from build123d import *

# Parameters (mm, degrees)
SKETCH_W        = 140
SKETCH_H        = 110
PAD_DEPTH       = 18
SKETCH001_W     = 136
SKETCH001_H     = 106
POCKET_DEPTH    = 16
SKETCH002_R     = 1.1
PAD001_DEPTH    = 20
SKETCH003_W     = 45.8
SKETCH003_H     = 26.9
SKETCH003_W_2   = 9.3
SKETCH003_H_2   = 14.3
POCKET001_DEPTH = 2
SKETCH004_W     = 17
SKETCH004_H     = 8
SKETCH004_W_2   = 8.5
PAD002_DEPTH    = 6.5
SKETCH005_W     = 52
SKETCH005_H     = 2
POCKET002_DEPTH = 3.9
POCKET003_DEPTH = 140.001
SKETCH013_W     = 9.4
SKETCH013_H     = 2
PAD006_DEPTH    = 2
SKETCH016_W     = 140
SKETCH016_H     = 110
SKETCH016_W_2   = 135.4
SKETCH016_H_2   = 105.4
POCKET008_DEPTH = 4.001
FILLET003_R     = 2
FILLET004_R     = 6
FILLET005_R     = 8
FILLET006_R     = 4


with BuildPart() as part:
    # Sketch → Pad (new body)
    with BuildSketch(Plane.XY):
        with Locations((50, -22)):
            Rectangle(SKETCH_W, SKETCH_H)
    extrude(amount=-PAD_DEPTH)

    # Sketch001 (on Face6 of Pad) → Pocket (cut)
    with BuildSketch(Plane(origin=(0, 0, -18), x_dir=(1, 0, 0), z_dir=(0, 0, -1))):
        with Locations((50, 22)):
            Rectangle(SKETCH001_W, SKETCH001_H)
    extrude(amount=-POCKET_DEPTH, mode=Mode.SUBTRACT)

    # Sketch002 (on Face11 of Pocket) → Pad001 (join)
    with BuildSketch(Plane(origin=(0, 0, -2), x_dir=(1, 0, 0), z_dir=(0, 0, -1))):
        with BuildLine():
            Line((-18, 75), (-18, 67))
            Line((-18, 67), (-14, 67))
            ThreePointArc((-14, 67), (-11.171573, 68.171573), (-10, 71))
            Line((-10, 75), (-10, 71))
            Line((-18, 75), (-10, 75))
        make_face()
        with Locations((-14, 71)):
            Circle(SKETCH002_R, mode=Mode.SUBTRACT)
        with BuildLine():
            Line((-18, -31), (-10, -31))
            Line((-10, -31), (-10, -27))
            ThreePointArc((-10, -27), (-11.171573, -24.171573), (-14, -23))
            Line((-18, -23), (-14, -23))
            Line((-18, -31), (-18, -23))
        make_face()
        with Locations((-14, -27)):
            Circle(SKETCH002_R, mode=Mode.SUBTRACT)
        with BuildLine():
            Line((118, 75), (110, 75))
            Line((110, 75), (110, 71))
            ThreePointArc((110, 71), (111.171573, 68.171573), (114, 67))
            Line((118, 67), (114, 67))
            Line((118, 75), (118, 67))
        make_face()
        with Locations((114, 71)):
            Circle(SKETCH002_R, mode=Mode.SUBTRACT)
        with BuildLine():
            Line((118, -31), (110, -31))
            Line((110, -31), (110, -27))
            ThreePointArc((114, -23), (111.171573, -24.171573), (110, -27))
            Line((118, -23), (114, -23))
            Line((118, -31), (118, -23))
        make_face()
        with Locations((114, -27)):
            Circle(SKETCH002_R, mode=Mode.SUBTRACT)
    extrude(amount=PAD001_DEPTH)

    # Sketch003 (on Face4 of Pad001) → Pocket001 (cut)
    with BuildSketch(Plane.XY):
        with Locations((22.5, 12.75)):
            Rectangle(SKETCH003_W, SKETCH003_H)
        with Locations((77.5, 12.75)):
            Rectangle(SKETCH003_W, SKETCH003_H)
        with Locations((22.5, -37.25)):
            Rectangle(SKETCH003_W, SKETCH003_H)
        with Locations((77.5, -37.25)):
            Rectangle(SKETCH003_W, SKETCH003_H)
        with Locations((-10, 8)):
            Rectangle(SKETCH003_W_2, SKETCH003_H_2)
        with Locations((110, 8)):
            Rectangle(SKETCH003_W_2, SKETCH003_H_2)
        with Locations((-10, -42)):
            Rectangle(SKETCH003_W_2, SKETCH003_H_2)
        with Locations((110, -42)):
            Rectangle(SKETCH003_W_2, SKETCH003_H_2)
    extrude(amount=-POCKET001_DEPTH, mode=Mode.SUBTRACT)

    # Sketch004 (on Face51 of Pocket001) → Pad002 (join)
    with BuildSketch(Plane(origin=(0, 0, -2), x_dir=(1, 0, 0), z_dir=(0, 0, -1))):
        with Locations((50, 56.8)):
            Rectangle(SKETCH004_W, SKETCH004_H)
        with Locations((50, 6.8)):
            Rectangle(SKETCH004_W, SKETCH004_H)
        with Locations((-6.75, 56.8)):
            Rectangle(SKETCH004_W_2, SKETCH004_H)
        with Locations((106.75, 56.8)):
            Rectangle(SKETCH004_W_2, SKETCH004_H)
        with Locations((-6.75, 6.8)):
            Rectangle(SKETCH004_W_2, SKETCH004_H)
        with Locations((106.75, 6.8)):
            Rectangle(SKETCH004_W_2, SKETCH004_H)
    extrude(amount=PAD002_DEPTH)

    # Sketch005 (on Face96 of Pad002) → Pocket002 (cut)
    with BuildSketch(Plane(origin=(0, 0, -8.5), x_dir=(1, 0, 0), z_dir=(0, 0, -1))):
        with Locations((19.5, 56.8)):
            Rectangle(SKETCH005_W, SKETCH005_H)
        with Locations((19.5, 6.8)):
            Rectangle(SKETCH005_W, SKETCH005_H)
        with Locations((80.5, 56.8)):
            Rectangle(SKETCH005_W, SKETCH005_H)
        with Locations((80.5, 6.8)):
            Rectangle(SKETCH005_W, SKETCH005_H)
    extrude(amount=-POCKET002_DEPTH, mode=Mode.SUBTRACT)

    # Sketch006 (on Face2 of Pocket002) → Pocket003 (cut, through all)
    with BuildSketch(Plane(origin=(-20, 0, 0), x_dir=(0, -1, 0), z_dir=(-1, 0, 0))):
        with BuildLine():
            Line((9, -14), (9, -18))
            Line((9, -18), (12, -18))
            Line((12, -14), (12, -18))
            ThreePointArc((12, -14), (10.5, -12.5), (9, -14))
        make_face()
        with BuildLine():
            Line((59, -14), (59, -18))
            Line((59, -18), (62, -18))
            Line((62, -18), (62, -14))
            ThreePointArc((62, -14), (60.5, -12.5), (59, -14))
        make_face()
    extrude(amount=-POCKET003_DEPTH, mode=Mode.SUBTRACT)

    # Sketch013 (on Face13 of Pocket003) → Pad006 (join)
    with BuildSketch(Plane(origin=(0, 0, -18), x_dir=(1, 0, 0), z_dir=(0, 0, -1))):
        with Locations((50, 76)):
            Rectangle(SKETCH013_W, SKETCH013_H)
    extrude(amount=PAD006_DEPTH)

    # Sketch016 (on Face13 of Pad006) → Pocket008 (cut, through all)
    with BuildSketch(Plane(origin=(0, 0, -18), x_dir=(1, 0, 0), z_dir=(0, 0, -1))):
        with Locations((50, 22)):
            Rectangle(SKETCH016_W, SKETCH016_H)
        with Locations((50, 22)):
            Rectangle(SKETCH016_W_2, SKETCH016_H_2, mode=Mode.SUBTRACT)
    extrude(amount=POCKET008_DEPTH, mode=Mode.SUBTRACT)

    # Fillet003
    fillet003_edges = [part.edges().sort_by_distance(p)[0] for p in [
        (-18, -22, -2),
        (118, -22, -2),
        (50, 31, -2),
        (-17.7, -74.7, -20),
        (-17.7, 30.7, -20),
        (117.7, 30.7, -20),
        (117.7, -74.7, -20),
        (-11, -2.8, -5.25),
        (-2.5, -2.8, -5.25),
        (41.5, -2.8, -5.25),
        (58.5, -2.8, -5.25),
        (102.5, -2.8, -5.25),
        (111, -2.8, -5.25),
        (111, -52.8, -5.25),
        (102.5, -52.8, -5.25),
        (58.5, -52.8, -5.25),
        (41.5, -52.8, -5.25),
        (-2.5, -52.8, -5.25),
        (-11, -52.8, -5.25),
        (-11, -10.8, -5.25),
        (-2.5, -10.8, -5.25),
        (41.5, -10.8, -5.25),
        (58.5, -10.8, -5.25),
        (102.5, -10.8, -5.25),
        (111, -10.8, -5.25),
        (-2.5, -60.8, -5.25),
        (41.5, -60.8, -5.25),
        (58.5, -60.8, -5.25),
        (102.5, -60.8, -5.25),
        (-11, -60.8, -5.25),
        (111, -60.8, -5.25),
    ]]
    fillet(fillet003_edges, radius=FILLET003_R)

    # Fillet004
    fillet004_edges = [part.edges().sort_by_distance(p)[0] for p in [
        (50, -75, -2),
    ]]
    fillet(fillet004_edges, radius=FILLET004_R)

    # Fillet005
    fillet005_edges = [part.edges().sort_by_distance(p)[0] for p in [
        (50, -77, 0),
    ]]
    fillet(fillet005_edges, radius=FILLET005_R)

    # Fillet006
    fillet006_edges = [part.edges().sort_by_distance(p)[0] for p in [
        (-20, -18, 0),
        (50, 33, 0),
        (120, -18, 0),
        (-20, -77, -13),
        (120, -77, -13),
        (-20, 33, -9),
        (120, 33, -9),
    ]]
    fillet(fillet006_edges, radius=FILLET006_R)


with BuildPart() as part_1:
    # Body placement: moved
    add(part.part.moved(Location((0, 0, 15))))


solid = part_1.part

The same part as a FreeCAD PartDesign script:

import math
import FreeCAD as App
import Part
import Sketcher


def edges_at(feature, points):
    """Names of the edges that pass closest to the given points."""
    edges = feature.Shape.Edges
    near = lambda p: min(range(len(edges)), key=lambda i: edges[i].distToShape(Part.Vertex(*p))[0])
    return sorted({f"Edge{near(p) + 1}" for p in points})

doc = App.newDocument("Part")
body = doc.addObject("PartDesign::Body", "Body")

sketch1 = body.newObject("Sketcher::SketchObject", "Sketch")
sketch1.AttachmentSupport = (doc.getObject("XY_Plane"), [""])
sketch1.MapMode = "FlatFace"
sketch1.addGeometry([
    Part.LineSegment(App.Vector(-20, 33, 0), App.Vector(-20, -77, 0)),
    Part.LineSegment(App.Vector(-20, -77, 0), App.Vector(120, -77, 0)),
    Part.LineSegment(App.Vector(120, -77, 0), App.Vector(120, 33, 0)),
    Part.LineSegment(App.Vector(120, 33, 0), App.Vector(-20, 33, 0)),
], False)
sketch1.addConstraint([
    Sketcher.Constraint("Coincident", 0, 2, 1, 1),
    Sketcher.Constraint("Coincident", 1, 2, 2, 1),
    Sketcher.Constraint("Coincident", 2, 2, 3, 1),
    Sketcher.Constraint("Coincident", 3, 2, 0, 1),
    Sketcher.Constraint("Vertical", 0),
    Sketcher.Constraint("Horizontal", 1),
    Sketcher.Constraint("Vertical", 2),
    Sketcher.Constraint("Horizontal", 3),
    Sketcher.Constraint("DistanceX", 1, 1, 1, 2, 140.0),
    Sketcher.Constraint("DistanceY", 0, 2, 0, 1, 110.0),
    Sketcher.Constraint("DistanceX", 0, 2, -1, 1, 20.0),
    Sketcher.Constraint("DistanceY", 0, 2, -1, 1, 77.0),
])
pad1 = body.newObject("PartDesign::Pad", "Pad")
pad1.Profile = sketch1
pad1.Length = 18
pad1.Reversed = True

sketch2 = body.newObject("Sketcher::SketchObject", "Sketch001")
sketch2.AttachmentSupport = (doc.getObject("XY_Plane"), [""])
sketch2.MapMode = "FlatFace"
sketch2.AttachmentOffset = App.Placement(App.Vector(0, 0, -18), App.Rotation())
sketch2.addGeometry([
    Part.LineSegment(App.Vector(-18, -75, 0), App.Vector(-18, 31, 0)),
    Part.LineSegment(App.Vector(-18, 31, 0), App.Vector(118, 31, 0)),
    Part.LineSegment(App.Vector(118, 31, 0), App.Vector(118, -75, 0)),
    Part.LineSegment(App.Vector(118, -75, 0), App.Vector(-18, -75, 0)),
], False)
sketch2.addConstraint([
    Sketcher.Constraint("Coincident", 0, 2, 1, 1),
    Sketcher.Constraint("Coincident", 1, 2, 2, 1),
    Sketcher.Constraint("Coincident", 2, 2, 3, 1),
    Sketcher.Constraint("Coincident", 3, 2, 0, 1),
    Sketcher.Constraint("Vertical", 0),
    Sketcher.Constraint("Horizontal", 1),
    Sketcher.Constraint("Vertical", 2),
    Sketcher.Constraint("Horizontal", 3),
    Sketcher.Constraint("DistanceX", 1, 1, 1, 2, 136.0),
    Sketcher.Constraint("DistanceY", 0, 1, 0, 2, 106.0),
    Sketcher.Constraint("DistanceX", 0, 2, -1, 1, 18.0),
    Sketcher.Constraint("DistanceY", -1, 1, 0, 2, 31.0),
])
pocket1 = body.newObject("PartDesign::Pocket", "Pocket")
pocket1.Profile = sketch2
pocket1.Length = 16
pocket1.Reversed = True

sketch3 = body.newObject("Sketcher::SketchObject", "Sketch002")
sketch3.AttachmentSupport = (doc.getObject("XY_Plane"), [""])
sketch3.MapMode = "FlatFace"
sketch3.AttachmentOffset = App.Placement(App.Vector(0, 0, -2), App.Rotation())
sketch3.addGeometry([
    Part.LineSegment(App.Vector(-18, -75, 0), App.Vector(-18, -67, 0)),
    Part.LineSegment(App.Vector(-18, -67, 0), App.Vector(-14, -67, 0)),
    Part.ArcOfCircle(Part.Circle(App.Vector(-14, -71, 0), App.Vector(0, 0, 1), 4), math.radians(0), math.radians(90)),
    Part.LineSegment(App.Vector(-10, -71, 0), App.Vector(-10, -75, 0)),
    Part.LineSegment(App.Vector(-10, -75, 0), App.Vector(-18, -75, 0)),
    Part.Circle(App.Vector(-14, -71, 0), App.Vector(0, 0, 1), 1.1),
    Part.LineSegment(App.Vector(-18, 31, 0), App.Vector(-10, 31, 0)),
    Part.LineSegment(App.Vector(-10, 31, 0), App.Vector(-10, 27, 0)),
    Part.ArcOfCircle(Part.Circle(App.Vector(-14, 27, 0), App.Vector(0, 0, 1), 4), math.radians(-90), math.radians(0)),
    Part.LineSegment(App.Vector(-14, 23, 0), App.Vector(-18, 23, 0)),
    Part.LineSegment(App.Vector(-18, 23, 0), App.Vector(-18, 31, 0)),
    Part.Circle(App.Vector(-14, 27, 0), App.Vector(0, 0, 1), 1.1),
    Part.LineSegment(App.Vector(118, -75, 0), App.Vector(110, -75, 0)),
    Part.LineSegment(App.Vector(110, -75, 0), App.Vector(110, -71, 0)),
    Part.ArcOfCircle(Part.Circle(App.Vector(114, -71, 0), App.Vector(0, 0, 1), 4), math.radians(90), math.radians(180)),
    Part.LineSegment(App.Vector(114, -67, 0), App.Vector(118, -67, 0)),
    Part.LineSegment(App.Vector(118, -67, 0), App.Vector(118, -75, 0)),
    Part.Circle(App.Vector(114, -71, 0), App.Vector(0, 0, 1), 1.1),
    Part.LineSegment(App.Vector(110, 31, 0), App.Vector(118, 31, 0)),
    Part.LineSegment(App.Vector(118, 31, 0), App.Vector(118, 23, 0)),
    Part.LineSegment(App.Vector(118, 23, 0), App.Vector(114, 23, 0)),
    Part.ArcOfCircle(Part.Circle(App.Vector(114, 27, 0), App.Vector(0, 0, 1), 4), math.radians(-180), math.radians(-90)),
    Part.LineSegment(App.Vector(110, 27, 0), App.Vector(110, 31, 0)),
    Part.Circle(App.Vector(114, 27, 0), App.Vector(0, 0, 1), 1.1),
], False)
sketch3.addConstraint([
    Sketcher.Constraint("Coincident", 0, 2, 1, 1),
    Sketcher.Constraint("Tangent", 1, 2, 2, 2),
    Sketcher.Constraint("Tangent", 2, 1, 3, 1),
    Sketcher.Constraint("Coincident", 3, 2, 4, 1),
    Sketcher.Constraint("Coincident", 4, 2, 0, 1),
    Sketcher.Constraint("Coincident", 6, 2, 7, 1),
    Sketcher.Constraint("Tangent", 7, 2, 8, 2),
    Sketcher.Constraint("Tangent", 8, 1, 9, 1),
    Sketcher.Constraint("Coincident", 9, 2, 10, 1),
    Sketcher.Constraint("Coincident", 10, 2, 6, 1),
    Sketcher.Constraint("Coincident", 12, 2, 13, 1),
    Sketcher.Constraint("Tangent", 13, 2, 14, 2),
    Sketcher.Constraint("Tangent", 14, 1, 15, 1),
    Sketcher.Constraint("Coincident", 15, 2, 16, 1),
    Sketcher.Constraint("Coincident", 16, 2, 12, 1),
    Sketcher.Constraint("Coincident", 18, 2, 19, 1),
    Sketcher.Constraint("Coincident", 19, 2, 20, 1),
    Sketcher.Constraint("Tangent", 20, 2, 21, 2),
    Sketcher.Constraint("Tangent", 21, 1, 22, 1),
    Sketcher.Constraint("Coincident", 22, 2, 18, 1),
    Sketcher.Constraint("Vertical", 0),
    Sketcher.Constraint("Horizontal", 1),
    Sketcher.Constraint("Vertical", 3),
    Sketcher.Constraint("Horizontal", 4),
    Sketcher.Constraint("Horizontal", 6),
    Sketcher.Constraint("Vertical", 7),
    Sketcher.Constraint("Horizontal", 9),
    Sketcher.Constraint("Vertical", 10),
    Sketcher.Constraint("Horizontal", 12),
    Sketcher.Constraint("Vertical", 13),
    Sketcher.Constraint("Horizontal", 15),
    Sketcher.Constraint("Vertical", 16),
    Sketcher.Constraint("Horizontal", 18),
    Sketcher.Constraint("Vertical", 19),
    Sketcher.Constraint("Horizontal", 20),
    Sketcher.Constraint("Vertical", 22),
    Sketcher.Constraint("Coincident", 5, 3, 2, 3),
    Sketcher.Constraint("Coincident", 11, 3, 8, 3),
    Sketcher.Constraint("Coincident", 17, 3, 14, 3),
    Sketcher.Constraint("Coincident", 23, 3, 21, 3),
    Sketcher.Constraint("Equal", 2, 8),
    Sketcher.Constraint("Equal", 5, 11),
    Sketcher.Constraint("Equal", 8, 14),
    Sketcher.Constraint("Equal", 11, 17),
    Sketcher.Constraint("Equal", 14, 21),
    Sketcher.Constraint("Equal", 17, 23),
    Sketcher.Constraint("Horizontal", 5, 3, 14, 3),
    Sketcher.Constraint("Horizontal", 11, 3, 21, 3),
    Sketcher.Constraint("Horizontal", 4, 2, 12, 2),
    Sketcher.Constraint("Horizontal", 10, 2, 18, 2),
    Sketcher.Constraint("Vertical", 5, 3, 8, 3),
    Sketcher.Constraint("Vertical", 17, 3, 21, 3),
    Sketcher.Constraint("Vertical", 4, 2, 9, 2),
    Sketcher.Constraint("Vertical", 16, 2, 18, 2),
    Sketcher.Constraint("Equal", 6, 12),
    Sketcher.Constraint("Equal", 18, 0),
    Sketcher.Constraint("Equal", 3, 7),
    Sketcher.Constraint("Radius", 2, 4.0),
    Sketcher.Constraint("Diameter", 5, 2.2),
    Sketcher.Constraint("DistanceX", 1, 1, 1, 2, 4.0),
    Sketcher.Constraint("DistanceX", 2, 3, -1, 1, 14.0),
    Sketcher.Constraint("DistanceY", 2, 3, -1, 1, 71.0),
    Sketcher.Constraint("DistanceY", -1, 1, 8, 3, 27.0),
    Sketcher.Constraint("DistanceX", -1, 1, 14, 3, 114.0),
])
pad2 = body.newObject("PartDesign::Pad", "Pad001")
pad2.Profile = sketch3
pad2.Length = 20
pad2.Reversed = True

sketch4 = body.newObject("Sketcher::SketchObject", "Sketch003")
sketch4.AttachmentSupport = (doc.getObject("XY_Plane"), [""])
sketch4.MapMode = "FlatFace"
sketch4.addGeometry([
    Part.LineSegment(App.Vector(0, 26, 0), App.Vector(0, -1, 0)),
    Part.LineSegment(App.Vector(0, -1, 0), App.Vector(45, -1, 0)),
    Part.LineSegment(App.Vector(45, -1, 0), App.Vector(45, 26, 0)),
    Part.LineSegment(App.Vector(45, 26, 0), App.Vector(0, 26, 0)),
    Part.LineSegment(App.Vector(55, 26, 0), App.Vector(55, -1, 0)),
    Part.LineSegment(App.Vector(55, -1, 0), App.Vector(100, -1, 0)),
    Part.LineSegment(App.Vector(100, -1, 0), App.Vector(100, 26, 0)),
    Part.LineSegment(App.Vector(100, 26, 0), App.Vector(55, 26, 0)),
    Part.LineSegment(App.Vector(0, -24, 0), App.Vector(0, -51, 0)),
    Part.LineSegment(App.Vector(0, -51, 0), App.Vector(45, -51, 0)),
    Part.LineSegment(App.Vector(45, -51, 0), App.Vector(45, -24, 0)),
    Part.LineSegment(App.Vector(45, -24, 0), App.Vector(0, -24, 0)),
    Part.LineSegment(App.Vector(55, -24, 0), App.Vector(55, -51, 0)),
    Part.LineSegment(App.Vector(55, -51, 0), App.Vector(100, -51, 0)),
    Part.LineSegment(App.Vector(100, -51, 0), App.Vector(100, -24, 0)),
    Part.LineSegment(App.Vector(100, -24, 0), App.Vector(55, -24, 0)),
    Part.LineSegment(App.Vector(-15, 15, 0), App.Vector(-15, 1, 0)),
    Part.LineSegment(App.Vector(-15, 1, 0), App.Vector(-5, 1, 0)),
    Part.LineSegment(App.Vector(-5, 1, 0), App.Vector(-5, 15, 0)),
    Part.LineSegment(App.Vector(-5, 15, 0), App.Vector(-15, 15, 0)),
    Part.LineSegment(App.Vector(105, 15, 0), App.Vector(105, 1, 0)),
    Part.LineSegment(App.Vector(105, 1, 0), App.Vector(115, 1, 0)),
    Part.LineSegment(App.Vector(115, 1, 0), App.Vector(115, 15, 0)),
    Part.LineSegment(App.Vector(115, 15, 0), App.Vector(105, 15, 0)),
    Part.LineSegment(App.Vector(-15, -35, 0), App.Vector(-15, -49, 0)),
    Part.LineSegment(App.Vector(-15, -49, 0), App.Vector(-5, -49, 0)),
    Part.LineSegment(App.Vector(-5, -49, 0), App.Vector(-5, -35, 0)),
    Part.LineSegment(App.Vector(-5, -35, 0), App.Vector(-15, -35, 0)),
    Part.LineSegment(App.Vector(105, -35, 0), App.Vector(105, -49, 0)),
    Part.LineSegment(App.Vector(105, -49, 0), App.Vector(115, -49, 0)),
    Part.LineSegment(App.Vector(115, -49, 0), App.Vector(115, -35, 0)),
    Part.LineSegment(App.Vector(115, -35, 0), App.Vector(105, -35, 0)),
], False)
sketch4.addConstraint([
    Sketcher.Constraint("Coincident", 0, 2, 1, 1),
    Sketcher.Constraint("Coincident", 1, 2, 2, 1),
    Sketcher.Constraint("Coincident", 2, 2, 3, 1),
    Sketcher.Constraint("Coincident", 3, 2, 0, 1),
    Sketcher.Constraint("Coincident", 4, 2, 5, 1),
    Sketcher.Constraint("Coincident", 5, 2, 6, 1),
    Sketcher.Constraint("Coincident", 6, 2, 7, 1),
    Sketcher.Constraint("Coincident", 7, 2, 4, 1),
    Sketcher.Constraint("Coincident", 8, 2, 9, 1),
    Sketcher.Constraint("Coincident", 9, 2, 10, 1),
    Sketcher.Constraint("Coincident", 10, 2, 11, 1),
    Sketcher.Constraint("Coincident", 11, 2, 8, 1),
    Sketcher.Constraint("Coincident", 12, 2, 13, 1),
    Sketcher.Constraint("Coincident", 13, 2, 14, 1),
    Sketcher.Constraint("Coincident", 14, 2, 15, 1),
    Sketcher.Constraint("Coincident", 15, 2, 12, 1),
    Sketcher.Constraint("Coincident", 16, 2, 17, 1),
    Sketcher.Constraint("Coincident", 17, 2, 18, 1),
    Sketcher.Constraint("Coincident", 18, 2, 19, 1),
    Sketcher.Constraint("Coincident", 19, 2, 16, 1),
    Sketcher.Constraint("Coincident", 20, 2, 21, 1),
    Sketcher.Constraint("Coincident", 21, 2, 22, 1),
    Sketcher.Constraint("Coincident", 22, 2, 23, 1),
    Sketcher.Constraint("Coincident", 23, 2, 20, 1),
    Sketcher.Constraint("Coincident", 24, 2, 25, 1),
    Sketcher.Constraint("Coincident", 25, 2, 26, 1),
    Sketcher.Constraint("Coincident", 26, 2, 27, 1),
    Sketcher.Constraint("Coincident", 27, 2, 24, 1),
    Sketcher.Constraint("Coincident", 28, 2, 29, 1),
    Sketcher.Constraint("Coincident", 29, 2, 30, 1),
    Sketcher.Constraint("Coincident", 30, 2, 31, 1),
    Sketcher.Constraint("Coincident", 31, 2, 28, 1),
    Sketcher.Constraint("Vertical", 0),
    Sketcher.Constraint("Horizontal", 1),
    Sketcher.Constraint("Vertical", 2),
    Sketcher.Constraint("Horizontal", 3),
    Sketcher.Constraint("Vertical", 4),
    Sketcher.Constraint("Horizontal", 5),
    Sketcher.Constraint("Vertical", 6),
    Sketcher.Constraint("Horizontal", 7),
    Sketcher.Constraint("Vertical", 8),
    Sketcher.Constraint("Horizontal", 9),
    Sketcher.Constraint("Vertical", 10),
    Sketcher.Constraint("Horizontal", 11),
    Sketcher.Constraint("Vertical", 12),
    Sketcher.Constraint("Horizontal", 13),
    Sketcher.Constraint("Vertical", 14),
    Sketcher.Constraint("Horizontal", 15),
    Sketcher.Constraint("Vertical", 16),
    Sketcher.Constraint("Horizontal", 17),
    Sketcher.Constraint("Vertical", 18),
    Sketcher.Constraint("Horizontal", 19),
    Sketcher.Constraint("Vertical", 20),
    Sketcher.Constraint("Horizontal", 21),
    Sketcher.Constraint("Vertical", 22),
    Sketcher.Constraint("Horizontal", 23),
    Sketcher.Constraint("Vertical", 24),
    Sketcher.Constraint("Horizontal", 25),
    Sketcher.Constraint("Vertical", 26),
    Sketcher.Constraint("Horizontal", 27),
    Sketcher.Constraint("Vertical", 28),
    Sketcher.Constraint("Horizontal", 29),
    Sketcher.Constraint("Vertical", 30),
    Sketcher.Constraint("Horizontal", 31),
    Sketcher.Constraint("Horizontal", 1, 2, 4, 2),
    Sketcher.Constraint("Horizontal", 3, 2, 6, 2),
    Sketcher.Constraint("Horizontal", 9, 2, 12, 2),
    Sketcher.Constraint("Horizontal", 11, 2, 14, 2),
    Sketcher.Constraint("Horizontal", 17, 2, 20, 2),
    Sketcher.Constraint("Horizontal", 19, 2, 22, 2),
    Sketcher.Constraint("Horizontal", 25, 2, 28, 2),
    Sketcher.Constraint("Horizontal", 27, 2, 30, 2),
    Sketcher.Constraint("Vertical", 3, 2, 8, 2),
    Sketcher.Constraint("Vertical", 2, 2, 9, 2),
    Sketcher.Constraint("Vertical", 7, 2, 12, 2),
    Sketcher.Constraint("Vertical", 6, 2, 13, 2),
    Sketcher.Constraint("Vertical", 19, 2, 24, 2),
    Sketcher.Constraint("Vertical", 18, 2, 25, 2),
    Sketcher.Constraint("Vertical", 23, 2, 28, 2),
    Sketcher.Constraint("Vertical", 22, 2, 29, 2),
    Sketcher.Constraint("Equal", 3, 5),
    Sketcher.Constraint("Equal", 19, 21),
    Sketcher.Constraint("Equal", 6, 8),
    Sketcher.Constraint("Equal", 22, 24),
    Sketcher.Constraint("DistanceX", 1, 1, 1, 2, 45.8),
    Sketcher.Constraint("DistanceX", 17, 1, 17, 2, 9.3),
    Sketcher.Constraint("DistanceY", 0, 2, 0, 1, 26.9),
    Sketcher.Constraint("DistanceY", 16, 2, 16, 1, 14.3),
    Sketcher.Constraint("DistanceX", 0, 2, 4, 2, 55.0),
    Sketcher.Constraint("DistanceY", 8, 2, 0, 2, 50.0),
    Sketcher.Constraint("DistanceY", 24, 2, 16, 2, 50.0),
    Sketcher.Constraint("DistanceX", 0, 2, -1, 1, 0.4),
    Sketcher.Constraint("DistanceY", 0, 2, -1, 1, 0.7),
    Sketcher.Constraint("DistanceX", 16, 2, -1, 1, 14.65),
    Sketcher.Constraint("DistanceY", -1, 1, 16, 2, 0.85),
    Sketcher.Constraint("DistanceX", -1, 1, 20, 2, 105.35),
])
pocket2 = body.newObject("PartDesign::Pocket", "Pocket001")
pocket2.Profile = sketch4
pocket2.Length = 2

sketch5 = body.newObject("Sketcher::SketchObject", "Sketch004")
sketch5.AttachmentSupport = (doc.getObject("XY_Plane"), [""])
sketch5.MapMode = "FlatFace"
sketch5.AttachmentOffset = App.Placement(App.Vector(0, 0, -2), App.Rotation())
sketch5.addGeometry([
    Part.LineSegment(App.Vector(42, -61, 0), App.Vector(42, -53, 0)),
    Part.LineSegment(App.Vector(42, -53, 0), App.Vector(58, -53, 0)),
    Part.LineSegment(App.Vector(58, -53, 0), App.Vector(58, -61, 0)),
    Part.LineSegment(App.Vector(58, -61, 0), App.Vector(42, -61, 0)),
    Part.LineSegment(App.Vector(42, -11, 0), App.Vector(42, -3, 0)),
    Part.LineSegment(App.Vector(42, -3, 0), App.Vector(58, -3, 0)),
    Part.LineSegment(App.Vector(58, -3, 0), App.Vector(58, -11, 0)),
    Part.LineSegment(App.Vector(58, -11, 0), App.Vector(42, -11, 0)),
    Part.LineSegment(App.Vector(-11, -61, 0), App.Vector(-11, -53, 0)),
    Part.LineSegment(App.Vector(-11, -53, 0), App.Vector(-2, -53, 0)),
    Part.LineSegment(App.Vector(-2, -53, 0), App.Vector(-2, -61, 0)),
    Part.LineSegment(App.Vector(-2, -61, 0), App.Vector(-11, -61, 0)),
    Part.LineSegment(App.Vector(102, -61, 0), App.Vector(102, -53, 0)),
    Part.LineSegment(App.Vector(102, -53, 0), App.Vector(111, -53, 0)),
    Part.LineSegment(App.Vector(111, -53, 0), App.Vector(111, -61, 0)),
    Part.LineSegment(App.Vector(111, -61, 0), App.Vector(102, -61, 0)),
    Part.LineSegment(App.Vector(-11, -11, 0), App.Vector(-11, -3, 0)),
    Part.LineSegment(App.Vector(-11, -3, 0), App.Vector(-2, -3, 0)),
    Part.LineSegment(App.Vector(-2, -3, 0), App.Vector(-2, -11, 0)),
    Part.LineSegment(App.Vector(-2, -11, 0), App.Vector(-11, -11, 0)),
    Part.LineSegment(App.Vector(102, -11, 0), App.Vector(102, -3, 0)),
    Part.LineSegment(App.Vector(102, -3, 0), App.Vector(111, -3, 0)),
    Part.LineSegment(App.Vector(111, -3, 0), App.Vector(111, -11, 0)),
    Part.LineSegment(App.Vector(111, -11, 0), App.Vector(102, -11, 0)),
], False)
sketch5.addConstraint([
    Sketcher.Constraint("Coincident", 0, 2, 1, 1),
    Sketcher.Constraint("Coincident", 1, 2, 2, 1),
    Sketcher.Constraint("Coincident", 2, 2, 3, 1),
    Sketcher.Constraint("Coincident", 3, 2, 0, 1),
    Sketcher.Constraint("Coincident", 4, 2, 5, 1),
    Sketcher.Constraint("Coincident", 5, 2, 6, 1),
    Sketcher.Constraint("Coincident", 6, 2, 7, 1),
    Sketcher.Constraint("Coincident", 7, 2, 4, 1),
    Sketcher.Constraint("Coincident", 8, 2, 9, 1),
    Sketcher.Constraint("Coincident", 9, 2, 10, 1),
    Sketcher.Constraint("Coincident", 10, 2, 11, 1),
    Sketcher.Constraint("Coincident", 11, 2, 8, 1),
    Sketcher.Constraint("Coincident", 12, 2, 13, 1),
    Sketcher.Constraint("Coincident", 13, 2, 14, 1),
    Sketcher.Constraint("Coincident", 14, 2, 15, 1),
    Sketcher.Constraint("Coincident", 15, 2, 12, 1),
    Sketcher.Constraint("Coincident", 16, 2, 17, 1),
    Sketcher.Constraint("Coincident", 17, 2, 18, 1),
    Sketcher.Constraint("Coincident", 18, 2, 19, 1),
    Sketcher.Constraint("Coincident", 19, 2, 16, 1),
    Sketcher.Constraint("Coincident", 20, 2, 21, 1),
    Sketcher.Constraint("Coincident", 21, 2, 22, 1),
    Sketcher.Constraint("Coincident", 22, 2, 23, 1),
    Sketcher.Constraint("Coincident", 23, 2, 20, 1),
    Sketcher.Constraint("Vertical", 0),
    Sketcher.Constraint("Horizontal", 1),
    Sketcher.Constraint("Vertical", 2),
    Sketcher.Constraint("Horizontal", 3),
    Sketcher.Constraint("Vertical", 4),
    Sketcher.Constraint("Horizontal", 5),
    Sketcher.Constraint("Vertical", 6),
    Sketcher.Constraint("Horizontal", 7),
    Sketcher.Constraint("Vertical", 8),
    Sketcher.Constraint("Horizontal", 9),
    Sketcher.Constraint("Vertical", 10),
    Sketcher.Constraint("Horizontal", 11),
    Sketcher.Constraint("Vertical", 12),
    Sketcher.Constraint("Horizontal", 13),
    Sketcher.Constraint("Vertical", 14),
    Sketcher.Constraint("Horizontal", 15),
    Sketcher.Constraint("Vertical", 16),
    Sketcher.Constraint("Horizontal", 17),
    Sketcher.Constraint("Vertical", 18),
    Sketcher.Constraint("Horizontal", 19),
    Sketcher.Constraint("Vertical", 20),
    Sketcher.Constraint("Horizontal", 21),
    Sketcher.Constraint("Vertical", 22),
    Sketcher.Constraint("Horizontal", 23),
    Sketcher.Constraint("Horizontal", 1, 2, 8, 2),
    Sketcher.Constraint("Horizontal", 3, 2, 10, 2),
    Sketcher.Constraint("Horizontal", 9, 2, 12, 2),
    Sketcher.Constraint("Horizontal", 11, 2, 14, 2),
    Sketcher.Constraint("Horizontal", 5, 2, 16, 2),
    Sketcher.Constraint("Horizontal", 7, 2, 18, 2),
    Sketcher.Constraint("Horizontal", 17, 2, 20, 2),
    Sketcher.Constraint("Horizontal", 19, 2, 22, 2),
    Sketcher.Constraint("Vertical", 3, 2, 4, 2),
    Sketcher.Constraint("Vertical", 2, 2, 5, 2),
    Sketcher.Constraint("Vertical", 11, 2, 16, 2),
    Sketcher.Constraint("Vertical", 10, 2, 17, 2),
    Sketcher.Constraint("Vertical", 15, 2, 20, 2),
    Sketcher.Constraint("Vertical", 14, 2, 21, 2),
    Sketcher.Constraint("Equal", 11, 13),
    Sketcher.Constraint("Equal", 2, 4),
    Sketcher.Constraint("DistanceX", 1, 1, 1, 2, 17.0),
    Sketcher.Constraint("DistanceY", 0, 1, 0, 2, 8.0),
    Sketcher.Constraint("DistanceX", 9, 1, 9, 2, 8.5),
    Sketcher.Constraint("DistanceX", 8, 2, -1, 1, 11.0),
    Sketcher.Constraint("DistanceX", -1, 1, 13, 2, 111.0),
    Sketcher.Constraint("DistanceY", 0, 2, 4, 2, 50.0),
    Sketcher.Constraint("DistanceX", 9, 2, 0, 2, 44.0),
    Sketcher.Constraint("DistanceY", 0, 2, -1, 1, 52.8),
])
pad3 = body.newObject("PartDesign::Pad", "Pad002")
pad3.Profile = sketch5
pad3.Length = 6.5
pad3.Reversed = True

sketch6 = body.newObject("Sketcher::SketchObject", "Sketch005")
sketch6.AttachmentSupport = (doc.getObject("XY_Plane"), [""])
sketch6.MapMode = "FlatFace"
sketch6.AttachmentOffset = App.Placement(App.Vector(0, 0, -8.5), App.Rotation())
sketch6.addGeometry([
    Part.LineSegment(App.Vector(-6.5, -57.8, 0), App.Vector(-6.5, -55.8, 0)),
    Part.LineSegment(App.Vector(-6.5, -55.8, 0), App.Vector(45.5, -55.8, 0)),
    Part.LineSegment(App.Vector(45.5, -55.8, 0), App.Vector(45.5, -57.8, 0)),
    Part.LineSegment(App.Vector(45.5, -57.8, 0), App.Vector(-6.5, -57.8, 0)),
    Part.LineSegment(App.Vector(-6.5, -7.8, 0), App.Vector(-6.5, -5.8, 0)),
    Part.LineSegment(App.Vector(-6.5, -5.8, 0), App.Vector(45.5, -5.8, 0)),
    Part.LineSegment(App.Vector(45.5, -5.8, 0), App.Vector(45.5, -7.8, 0)),
    Part.LineSegment(App.Vector(45.5, -7.8, 0), App.Vector(-6.5, -7.8, 0)),
    Part.LineSegment(App.Vector(54.5, -57.8, 0), App.Vector(54.5, -55.8, 0)),
    Part.LineSegment(App.Vector(54.5, -55.8, 0), App.Vector(106.5, -55.8, 0)),
    Part.LineSegment(App.Vector(106.5, -55.8, 0), App.Vector(106.5, -57.8, 0)),
    Part.LineSegment(App.Vector(106.5, -57.8, 0), App.Vector(54.5, -57.8, 0)),
    Part.LineSegment(App.Vector(54.5, -7.8, 0), App.Vector(54.5, -5.8, 0)),
    Part.LineSegment(App.Vector(54.5, -5.8, 0), App.Vector(106.5, -5.8, 0)),
    Part.LineSegment(App.Vector(106.5, -5.8, 0), App.Vector(106.5, -7.8, 0)),
    Part.LineSegment(App.Vector(106.5, -7.8, 0), App.Vector(54.5, -7.8, 0)),
], False)
sketch6.addConstraint([
    Sketcher.Constraint("Coincident", 0, 2, 1, 1),
    Sketcher.Constraint("Coincident", 1, 2, 2, 1),
    Sketcher.Constraint("Coincident", 2, 2, 3, 1),
    Sketcher.Constraint("Coincident", 3, 2, 0, 1),
    Sketcher.Constraint("Coincident", 4, 2, 5, 1),
    Sketcher.Constraint("Coincident", 5, 2, 6, 1),
    Sketcher.Constraint("Coincident", 6, 2, 7, 1),
    Sketcher.Constraint("Coincident", 7, 2, 4, 1),
    Sketcher.Constraint("Coincident", 8, 2, 9, 1),
    Sketcher.Constraint("Coincident", 9, 2, 10, 1),
    Sketcher.Constraint("Coincident", 10, 2, 11, 1),
    Sketcher.Constraint("Coincident", 11, 2, 8, 1),
    Sketcher.Constraint("Coincident", 12, 2, 13, 1),
    Sketcher.Constraint("Coincident", 13, 2, 14, 1),
    Sketcher.Constraint("Coincident", 14, 2, 15, 1),
    Sketcher.Constraint("Coincident", 15, 2, 12, 1),
    Sketcher.Constraint("Vertical", 0),
    Sketcher.Constraint("Horizontal", 1),
    Sketcher.Constraint("Vertical", 2),
    Sketcher.Constraint("Horizontal", 3),
    Sketcher.Constraint("Vertical", 4),
    Sketcher.Constraint("Horizontal", 5),
    Sketcher.Constraint("Vertical", 6),
    Sketcher.Constraint("Horizontal", 7),
    Sketcher.Constraint("Vertical", 8),
    Sketcher.Constraint("Horizontal", 9),
    Sketcher.Constraint("Vertical", 10),
    Sketcher.Constraint("Horizontal", 11),
    Sketcher.Constraint("Vertical", 12),
    Sketcher.Constraint("Horizontal", 13),
    Sketcher.Constraint("Vertical", 14),
    Sketcher.Constraint("Horizontal", 15),
    Sketcher.Constraint("Horizontal", 1, 2, 8, 2),
    Sketcher.Constraint("Horizontal", 3, 2, 10, 2),
    Sketcher.Constraint("Horizontal", 5, 2, 12, 2),
    Sketcher.Constraint("Horizontal", 7, 2, 14, 2),
    Sketcher.Constraint("Vertical", 3, 2, 4, 2),
    Sketcher.Constraint("Vertical", 2, 2, 5, 2),
    Sketcher.Constraint("Vertical", 11, 2, 12, 2),
    Sketcher.Constraint("Vertical", 10, 2, 13, 2),
    Sketcher.Constraint("Equal", 7, 9),
    Sketcher.Constraint("Equal", 2, 4),
    Sketcher.Constraint("DistanceX", 1, 1, 1, 2, 52.0),
    Sketcher.Constraint("DistanceY", 0, 1, 0, 2, 2.0),
    Sketcher.Constraint("DistanceY", 0, 2, 4, 2, 50.0),
    Sketcher.Constraint("DistanceX", 1, 2, 8, 2, 9.0),
    Sketcher.Constraint("DistanceX", 0, 2, -1, 1, 6.5),
    Sketcher.Constraint("DistanceY", 0, 2, -1, 1, 55.8),
])
pocket3 = body.newObject("PartDesign::Pocket", "Pocket002")
pocket3.Profile = sketch6
pocket3.Length = 3.9
pocket3.Reversed = True

sketch7 = body.newObject("Sketcher::SketchObject", "Sketch006")
sketch7.AttachmentSupport = (doc.getObject("YZ_Plane"), [""])
sketch7.MapMode = "FlatFace"
sketch7.AttachmentOffset = App.Placement(App.Vector(0, 0, -20), App.Rotation())
sketch7.addGeometry([
    Part.LineSegment(App.Vector(-9, -14, 0), App.Vector(-9, -18, 0)),
    Part.LineSegment(App.Vector(-9, -18, 0), App.Vector(-12, -18, 0)),
    Part.LineSegment(App.Vector(-12, -18, 0), App.Vector(-12, -14, 0)),
    Part.ArcOfCircle(Part.Circle(App.Vector(-10.5, -14, 0), App.Vector(0, 0, 1), 1.5), math.radians(0), math.radians(180)),
    Part.LineSegment(App.Vector(-59, -14, 0), App.Vector(-59, -18, 0)),
    Part.LineSegment(App.Vector(-59, -18, 0), App.Vector(-62, -18, 0)),
    Part.LineSegment(App.Vector(-62, -18, 0), App.Vector(-62, -14, 0)),
    Part.ArcOfCircle(Part.Circle(App.Vector(-60.5, -14, 0), App.Vector(0, 0, 1), 1.5), math.radians(0), math.radians(180)),
], False)
sketch7.addConstraint([
    Sketcher.Constraint("Coincident", 0, 2, 1, 1),
    Sketcher.Constraint("Coincident", 1, 2, 2, 1),
    Sketcher.Constraint("Tangent", 2, 2, 3, 2),
    Sketcher.Constraint("Tangent", 3, 1, 0, 1),
    Sketcher.Constraint("Coincident", 4, 2, 5, 1),
    Sketcher.Constraint("Coincident", 5, 2, 6, 1),
    Sketcher.Constraint("Tangent", 6, 2, 7, 2),
    Sketcher.Constraint("Tangent", 7, 1, 4, 1),
    Sketcher.Constraint("Vertical", 0),
    Sketcher.Constraint("Horizontal", 1),
    Sketcher.Constraint("Vertical", 2),
    Sketcher.Constraint("Vertical", 4),
    Sketcher.Constraint("Horizontal", 5),
    Sketcher.Constraint("Vertical", 6),
    Sketcher.Constraint("Equal", 3, 7),
    Sketcher.Constraint("Horizontal", 3, 3, 7, 3),
    Sketcher.Constraint("Horizontal", 1, 2, 4, 2),
    Sketcher.Constraint("Radius", 3, 1.5),
    Sketcher.Constraint("DistanceY", 0, 2, 0, 1, 4.0),
    Sketcher.Constraint("DistanceY", 3, 3, -1, 1, 14.0),
    Sketcher.Constraint("DistanceX", 0, 2, -1, 1, 9.0),
    Sketcher.Constraint("DistanceX", 4, 2, -1, 1, 59.0),
])
pocket4 = body.newObject("PartDesign::Pocket", "Pocket003")
pocket4.Profile = sketch7
pocket4.Type = "ThroughAll"
pocket4.Reversed = True

sketch8 = body.newObject("Sketcher::SketchObject", "Sketch007")
sketch8.AttachmentSupport = (doc.getObject("XY_Plane"), [""])
sketch8.MapMode = "FlatFace"
sketch8.AttachmentOffset = App.Placement(App.Vector(0, 0, -18), App.Rotation())
sketch8.addGeometry([
    Part.LineSegment(App.Vector(45.3, -77, 0), App.Vector(45.3, -75, 0)),
    Part.LineSegment(App.Vector(45.3, -75, 0), App.Vector(54.7, -75, 0)),
    Part.LineSegment(App.Vector(54.7, -75, 0), App.Vector(54.7, -77, 0)),
    Part.LineSegment(App.Vector(54.7, -77, 0), App.Vector(45.3, -77, 0)),
], False)
sketch8.addConstraint([
    Sketcher.Constraint("Coincident", 0, 2, 1, 1),
    Sketcher.Constraint("Coincident", 1, 2, 2, 1),
    Sketcher.Constraint("Coincident", 2, 2, 3, 1),
    Sketcher.Constraint("Coincident", 3, 2, 0, 1),
    Sketcher.Constraint("Vertical", 0),
    Sketcher.Constraint("Horizontal", 1),
    Sketcher.Constraint("Vertical", 2),
    Sketcher.Constraint("Horizontal", 3),
    Sketcher.Constraint("DistanceY", 0, 1, 0, 2, 2.0),
    Sketcher.Constraint("DistanceX", 1, 1, 1, 2, 9.4),
    Sketcher.Constraint("DistanceY", 0, 2, -1, 1, 75.0),
    Sketcher.Constraint("DistanceX", -1, 1, 0, 2, 45.3),
])
pad4 = body.newObject("PartDesign::Pad", "Pad003")
pad4.Profile = sketch8
pad4.Length = 2
pad4.Reversed = True

sketch9 = body.newObject("Sketcher::SketchObject", "Sketch008")
sketch9.AttachmentSupport = (doc.getObject("XY_Plane"), [""])
sketch9.MapMode = "FlatFace"
sketch9.AttachmentOffset = App.Placement(App.Vector(0, 0, -18), App.Rotation())
sketch9.addGeometry([
    Part.LineSegment(App.Vector(-20, -77, 0), App.Vector(-20, 33, 0)),
    Part.LineSegment(App.Vector(-20, 33, 0), App.Vector(120, 33, 0)),
    Part.LineSegment(App.Vector(120, 33, 0), App.Vector(120, -77, 0)),
    Part.LineSegment(App.Vector(120, -77, 0), App.Vector(-20, -77, 0)),
    Part.LineSegment(App.Vector(118, 31, 0), App.Vector(-18, 31, 0)),
    Part.LineSegment(App.Vector(-18, 31, 0), App.Vector(-18, -75, 0)),
    Part.LineSegment(App.Vector(-18, -75, 0), App.Vector(118, -75, 0)),
    Part.LineSegment(App.Vector(118, -75, 0), App.Vector(118, 31, 0)),
], False)
sketch9.addConstraint([
    Sketcher.Constraint("Coincident", 0, 2, 1, 1),
    Sketcher.Constraint("Coincident", 1, 2, 2, 1),
    Sketcher.Constraint("Coincident", 2, 2, 3, 1),
    Sketcher.Constraint("Coincident", 3, 2, 0, 1),
    Sketcher.Constraint("Coincident", 4, 2, 5, 1),
    Sketcher.Constraint("Coincident", 5, 2, 6, 1),
    Sketcher.Constraint("Coincident", 6, 2, 7, 1),
    Sketcher.Constraint("Coincident", 7, 2, 4, 1),
    Sketcher.Constraint("Vertical", 0),
    Sketcher.Constraint("Horizontal", 1),
    Sketcher.Constraint("Vertical", 2),
    Sketcher.Constraint("Horizontal", 3),
    Sketcher.Constraint("Horizontal", 4),
    Sketcher.Constraint("Vertical", 5),
    Sketcher.Constraint("Horizontal", 6),
    Sketcher.Constraint("Vertical", 7),
    Sketcher.Constraint("DistanceX", 1, 1, 1, 2, 140.0),
    Sketcher.Constraint("DistanceY", 0, 1, 0, 2, 110.0),
    Sketcher.Constraint("DistanceX", 4, 2, 4, 1, 135.4),
    Sketcher.Constraint("DistanceY", 5, 2, 5, 1, 105.4),
    Sketcher.Constraint("DistanceX", 0, 2, -1, 1, 20.0),
    Sketcher.Constraint("DistanceY", -1, 1, 0, 2, 33.0),
    Sketcher.Constraint("DistanceX", 4, 2, -1, 1, 17.7),
    Sketcher.Constraint("DistanceY", -1, 1, 4, 2, 30.7),
])
pocket5 = body.newObject("PartDesign::Pocket", "Pocket004")
pocket5.Profile = sketch9
pocket5.Type = "ThroughAll"
doc.recompute()

fillet = body.newObject("PartDesign::Fillet", "Fillet")
fillet.Base = (pocket5, edges_at(pocket5, [
    (-18, -22, -2),
    (118, -22, -2),
    (50, 31, -2),
    (-17.7, -74.7, -20),
    (-17.7, 30.7, -20),
    (117.7, 30.7, -20),
    (117.7, -74.7, -20),
    (-11, -2.8, -5.25),
    (-2.5, -2.8, -5.25),
    (41.5, -2.8, -5.25),
    (58.5, -2.8, -5.25),
    (102.5, -2.8, -5.25),
    (111, -2.8, -5.25),
    (111, -52.8, -5.25),
    (102.5, -52.8, -5.25),
    (58.5, -52.8, -5.25),
    (41.5, -52.8, -5.25),
    (-2.5, -52.8, -5.25),
    (-11, -52.8, -5.25),
    (-11, -10.8, -5.25),
    (-2.5, -10.8, -5.25),
    (41.5, -10.8, -5.25),
    (58.5, -10.8, -5.25),
    (102.5, -10.8, -5.25),
    (111, -10.8, -5.25),
    (-2.5, -60.8, -5.25),
    (41.5, -60.8, -5.25),
    (58.5, -60.8, -5.25),
    (102.5, -60.8, -5.25),
    (-11, -60.8, -5.25),
    (111, -60.8, -5.25),
]))
fillet.Radius = 2
doc.recompute()

fillet2 = body.newObject("PartDesign::Fillet", "Fillet001")
fillet2.Base = (fillet, edges_at(fillet, [(50, -75, -2)]))
fillet2.Radius = 6
doc.recompute()

fillet3 = body.newObject("PartDesign::Fillet", "Fillet002")
fillet3.Base = (fillet2, edges_at(fillet2, [(50, -77, 0)]))
fillet3.Radius = 8
doc.recompute()

fillet4 = body.newObject("PartDesign::Fillet", "Fillet003")
fillet4.Base = (fillet3, edges_at(fillet3, [
    (-20, -18, 0),
    (50, 33, 0),
    (120, -18, 0),
    (-20, -77, -13),
    (120, -77, -13),
    (-20, 33, -9),
    (120, 33, -9),
]))
fillet4.Radius = 4
body2 = doc.addObject("PartDesign::Body", "Body001")
doc.recompute()

body.Placement = App.Placement(App.Vector(0, 0, 15), App.Rotation(App.Vector(0, 0, 1), 0))
boolean = body2.newObject("PartDesign::Boolean", "Boolean")
boolean.Type = "Fuse"
boolean.addObjects([body])

doc.recompute()
